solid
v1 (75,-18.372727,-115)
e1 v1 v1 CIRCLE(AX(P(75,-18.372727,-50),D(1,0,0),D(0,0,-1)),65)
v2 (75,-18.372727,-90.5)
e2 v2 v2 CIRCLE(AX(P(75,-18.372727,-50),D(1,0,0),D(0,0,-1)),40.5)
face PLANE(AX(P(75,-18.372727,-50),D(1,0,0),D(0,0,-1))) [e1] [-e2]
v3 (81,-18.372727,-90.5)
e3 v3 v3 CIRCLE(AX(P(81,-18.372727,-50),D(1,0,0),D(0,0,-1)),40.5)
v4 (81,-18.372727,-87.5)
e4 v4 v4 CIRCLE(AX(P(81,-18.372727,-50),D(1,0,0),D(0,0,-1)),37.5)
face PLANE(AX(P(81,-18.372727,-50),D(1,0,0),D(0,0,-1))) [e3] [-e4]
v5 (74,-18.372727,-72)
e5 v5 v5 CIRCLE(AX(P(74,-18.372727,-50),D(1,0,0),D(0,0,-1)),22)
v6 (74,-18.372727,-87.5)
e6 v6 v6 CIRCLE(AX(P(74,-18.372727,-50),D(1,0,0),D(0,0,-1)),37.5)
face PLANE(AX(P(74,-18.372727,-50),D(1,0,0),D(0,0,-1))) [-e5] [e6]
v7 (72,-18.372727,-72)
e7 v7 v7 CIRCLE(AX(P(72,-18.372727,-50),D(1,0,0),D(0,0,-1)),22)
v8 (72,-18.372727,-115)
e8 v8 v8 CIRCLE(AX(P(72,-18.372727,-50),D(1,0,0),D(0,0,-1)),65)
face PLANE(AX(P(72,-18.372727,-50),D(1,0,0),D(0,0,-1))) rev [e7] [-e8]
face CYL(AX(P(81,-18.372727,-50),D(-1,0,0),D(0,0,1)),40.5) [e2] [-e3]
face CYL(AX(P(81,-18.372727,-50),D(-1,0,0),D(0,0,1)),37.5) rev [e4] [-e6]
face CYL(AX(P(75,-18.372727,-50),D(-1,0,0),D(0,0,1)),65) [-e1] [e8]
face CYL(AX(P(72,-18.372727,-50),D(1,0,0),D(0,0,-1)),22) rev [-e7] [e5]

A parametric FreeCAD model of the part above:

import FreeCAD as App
import Part
import Sketcher
from FreeCAD import Vector

doc = App.newDocument("Part")
body = doc.addObject("PartDesign::Body", "Body")

sketch1 = body.newObject("Sketcher::SketchObject", "Sketch")
sketch1.AttachmentSupport = (doc.getObject("YZ_Plane"), [""])
sketch1.MapMode = "FlatFace"
sketch1.AttachmentOffset = App.Placement(Vector(0, 0, 72), App.Rotation())
sketch1.addGeometry(Part.Circle(Vector(-18, -50, 0), Vector(0, 0, 1), 65), False)
sketch1.addConstraint(Sketcher.Constraint("Diameter", 0, 130.0))
sketch1.addConstraint(Sketcher.Constraint("DistanceY", 0, 3, -1, 1, 50.0))
sketch1.addConstraint(Sketcher.Constraint("DistanceX", 0, 3, -1, 1, 18.372727))
pad1 = body.newObject("PartDesign::Pad", "Pad")
pad1.Profile = sketch1
pad1.Length = 3

sketch2 = body.newObject("Sketcher::SketchObject", "Sketch001")
sketch2.AttachmentSupport = (doc.getObject("YZ_Plane"), [""])
sketch2.MapMode = "FlatFace"
sketch2.AttachmentOffset = App.Placement(Vector(0, 0, 75), App.Rotation())
sketch2.addGeometry(Part.Circle(Vector(-18, -50, 0), Vector(0, 0, 1), 40), False)
sketch2.addGeometry(Part.Circle(Vector(-18, -50, 0), Vector(0, 0, 1), 38), False)
sketch2.addConstraint(Sketcher.Constraint("Coincident", 1, 3, 0, 3))
sketch2.addConstraint(Sketcher.Constraint("Diameter", 0, 81.0))
sketch2.addConstraint(Sketcher.Constraint("Diameter", 1, 75.0))
sketch2.addConstraint(Sketcher.Constraint("DistanceY", 0, 3, -1, 1, 50.0))
sketch2.addConstraint(Sketcher.Constraint("DistanceX", 0, 3, -1, 1, 18.372727))
pad2 = body.newObject("PartDesign::Pad", "Pad001")
pad2.Profile = sketch2
pad2.Length = 6

sketch3 = body.newObject("Sketcher::SketchObject", "Sketch002")
sketch3.AttachmentSupport = (doc.getObject("YZ_Plane"), [""])
sketch3.MapMode = "FlatFace"
sketch3.AttachmentOffset = App.Placement(Vector(0, 0, 74), App.Rotation())
sketch3.addGeometry(Part.Circle(Vector(-18, -50, 0), Vector(0, 0, 1), 38), False)
sketch3.addConstraint(Sketcher.Constraint("Diameter", 0, 75.0))
sketch3.addConstraint(Sketcher.Constraint("DistanceY", 0, 3, -1, 1, 50.0))
sketch3.addConstraint(Sketcher.Constraint("DistanceX", 0, 3, -1, 1, 18.372727))
pocket1 = body.newObject("PartDesign::Pocket", "Pocket")
pocket1.Profile = sketch3
pocket1.Length = 1
pocket1.Reversed = True

sketch4 = body.newObject("Sketcher::SketchObject", "Sketch003")
sketch4.AttachmentSupport = (doc.getObject("YZ_Plane"), [""])
sketch4.MapMode = "FlatFace"
sketch4.AttachmentOffset = App.Placement(Vector(0, 0, 74), App.Rotation())
sketch4.addGeometry(Part.Circle(Vector(-18, -50, 0), Vector(0, 0, 1), 22), False)
sketch4.addConstraint(Sketcher.Constraint("Diameter", 0, 44.0))
sketch4.addConstraint(Sketcher.Constraint("DistanceY", 0, 3, -1, 1, 50.0))
sketch4.addConstraint(Sketcher.Constraint("DistanceX", 0, 3, -1, 1, 18.372727))
pocket2 = body.newObject("PartDesign::Pocket", "Pocket001")
pocket2.Profile = sketch4
pocket2.Type = "ThroughAll"

doc.recompute()
